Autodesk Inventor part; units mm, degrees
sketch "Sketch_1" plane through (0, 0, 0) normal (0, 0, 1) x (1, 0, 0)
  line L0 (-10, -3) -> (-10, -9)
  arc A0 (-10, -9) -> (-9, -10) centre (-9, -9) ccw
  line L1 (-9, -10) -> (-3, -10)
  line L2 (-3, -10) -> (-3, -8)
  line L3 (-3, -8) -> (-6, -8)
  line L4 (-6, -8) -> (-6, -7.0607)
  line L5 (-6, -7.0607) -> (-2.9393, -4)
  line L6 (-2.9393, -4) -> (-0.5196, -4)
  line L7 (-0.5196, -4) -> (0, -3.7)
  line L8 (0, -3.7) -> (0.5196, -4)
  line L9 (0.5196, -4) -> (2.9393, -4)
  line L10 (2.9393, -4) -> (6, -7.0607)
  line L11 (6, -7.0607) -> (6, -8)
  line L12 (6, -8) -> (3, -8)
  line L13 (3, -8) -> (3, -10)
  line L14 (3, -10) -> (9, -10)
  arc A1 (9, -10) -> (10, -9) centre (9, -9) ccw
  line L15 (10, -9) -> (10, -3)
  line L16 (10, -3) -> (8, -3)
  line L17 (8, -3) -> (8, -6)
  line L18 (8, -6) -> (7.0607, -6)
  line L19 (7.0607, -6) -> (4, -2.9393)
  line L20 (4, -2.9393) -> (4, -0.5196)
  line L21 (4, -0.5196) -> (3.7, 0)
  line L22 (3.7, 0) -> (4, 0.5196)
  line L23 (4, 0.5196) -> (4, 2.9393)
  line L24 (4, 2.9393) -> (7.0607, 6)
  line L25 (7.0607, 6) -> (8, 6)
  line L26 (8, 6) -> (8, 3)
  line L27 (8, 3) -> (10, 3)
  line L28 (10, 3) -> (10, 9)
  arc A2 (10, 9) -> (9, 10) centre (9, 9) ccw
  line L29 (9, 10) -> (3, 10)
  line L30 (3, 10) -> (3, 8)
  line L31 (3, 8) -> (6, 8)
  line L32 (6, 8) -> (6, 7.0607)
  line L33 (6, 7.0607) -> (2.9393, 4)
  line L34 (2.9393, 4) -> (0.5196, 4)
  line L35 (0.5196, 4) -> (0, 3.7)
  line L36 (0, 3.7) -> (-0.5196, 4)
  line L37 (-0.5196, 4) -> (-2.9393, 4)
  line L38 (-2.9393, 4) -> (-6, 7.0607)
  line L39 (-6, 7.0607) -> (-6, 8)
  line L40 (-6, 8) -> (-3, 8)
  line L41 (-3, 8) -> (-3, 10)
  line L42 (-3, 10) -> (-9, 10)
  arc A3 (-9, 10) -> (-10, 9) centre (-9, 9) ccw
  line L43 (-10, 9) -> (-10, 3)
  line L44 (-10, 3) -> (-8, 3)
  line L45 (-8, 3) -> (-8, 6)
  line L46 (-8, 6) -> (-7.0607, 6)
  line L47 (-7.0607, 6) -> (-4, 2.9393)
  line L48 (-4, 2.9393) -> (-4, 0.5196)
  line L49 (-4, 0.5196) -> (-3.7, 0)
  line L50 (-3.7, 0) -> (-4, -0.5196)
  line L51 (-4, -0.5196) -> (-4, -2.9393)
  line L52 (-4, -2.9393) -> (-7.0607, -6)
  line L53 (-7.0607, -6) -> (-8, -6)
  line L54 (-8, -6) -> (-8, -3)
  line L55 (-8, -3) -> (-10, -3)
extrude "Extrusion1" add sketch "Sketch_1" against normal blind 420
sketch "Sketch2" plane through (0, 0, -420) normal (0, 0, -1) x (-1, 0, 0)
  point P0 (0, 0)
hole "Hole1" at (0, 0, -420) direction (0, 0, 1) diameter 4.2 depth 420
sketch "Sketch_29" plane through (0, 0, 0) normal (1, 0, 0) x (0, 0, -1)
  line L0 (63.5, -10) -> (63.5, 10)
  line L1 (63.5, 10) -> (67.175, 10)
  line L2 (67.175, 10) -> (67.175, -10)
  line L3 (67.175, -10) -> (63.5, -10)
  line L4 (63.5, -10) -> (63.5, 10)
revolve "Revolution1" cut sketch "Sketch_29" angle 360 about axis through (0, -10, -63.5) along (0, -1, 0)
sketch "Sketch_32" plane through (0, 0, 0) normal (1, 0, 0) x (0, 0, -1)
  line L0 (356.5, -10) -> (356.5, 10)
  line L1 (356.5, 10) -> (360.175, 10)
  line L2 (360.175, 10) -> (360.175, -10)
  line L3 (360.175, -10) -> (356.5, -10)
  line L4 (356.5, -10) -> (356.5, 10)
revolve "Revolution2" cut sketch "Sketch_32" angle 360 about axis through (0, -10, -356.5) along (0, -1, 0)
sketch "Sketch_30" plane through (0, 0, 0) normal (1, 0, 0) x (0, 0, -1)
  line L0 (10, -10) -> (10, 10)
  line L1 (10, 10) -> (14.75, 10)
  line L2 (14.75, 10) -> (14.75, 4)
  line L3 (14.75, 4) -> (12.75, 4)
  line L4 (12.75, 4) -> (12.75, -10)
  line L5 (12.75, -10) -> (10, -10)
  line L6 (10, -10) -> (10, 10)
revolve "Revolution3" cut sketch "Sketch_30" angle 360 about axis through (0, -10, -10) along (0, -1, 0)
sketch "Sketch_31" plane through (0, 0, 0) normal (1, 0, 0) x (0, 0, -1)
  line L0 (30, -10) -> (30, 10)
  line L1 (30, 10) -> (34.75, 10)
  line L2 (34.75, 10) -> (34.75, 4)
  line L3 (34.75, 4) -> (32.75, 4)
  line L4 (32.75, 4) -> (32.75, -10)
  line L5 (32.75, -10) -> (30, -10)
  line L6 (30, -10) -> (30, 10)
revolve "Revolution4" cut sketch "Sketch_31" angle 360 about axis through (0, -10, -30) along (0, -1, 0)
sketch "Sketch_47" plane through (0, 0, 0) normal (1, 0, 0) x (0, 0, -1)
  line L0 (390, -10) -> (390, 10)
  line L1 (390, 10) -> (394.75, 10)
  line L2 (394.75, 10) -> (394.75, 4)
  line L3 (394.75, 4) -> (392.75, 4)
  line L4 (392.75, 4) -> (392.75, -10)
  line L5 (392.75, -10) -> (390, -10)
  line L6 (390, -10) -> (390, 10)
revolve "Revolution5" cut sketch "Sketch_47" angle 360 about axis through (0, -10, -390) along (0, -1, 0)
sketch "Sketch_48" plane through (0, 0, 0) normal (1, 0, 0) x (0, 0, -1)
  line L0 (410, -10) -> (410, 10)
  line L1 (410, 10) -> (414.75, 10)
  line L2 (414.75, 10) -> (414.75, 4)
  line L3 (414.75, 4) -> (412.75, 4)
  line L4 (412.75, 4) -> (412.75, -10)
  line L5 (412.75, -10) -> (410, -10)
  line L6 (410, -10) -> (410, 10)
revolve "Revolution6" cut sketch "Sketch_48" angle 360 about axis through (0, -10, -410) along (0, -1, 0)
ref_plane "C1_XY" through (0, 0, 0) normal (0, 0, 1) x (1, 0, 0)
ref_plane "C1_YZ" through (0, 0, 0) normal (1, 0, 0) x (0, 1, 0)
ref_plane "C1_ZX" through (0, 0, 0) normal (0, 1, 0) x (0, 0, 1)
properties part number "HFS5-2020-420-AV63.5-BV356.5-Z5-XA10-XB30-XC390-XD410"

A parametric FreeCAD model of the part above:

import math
import FreeCAD as App
import Part
import Sketcher
Q = App.Units.Quantity


def add_polygon(sketch, points):
    """Adds a closed chain of lines whose ends are joined by coincident constraints."""
    first, n = sketch.GeometryCount, len(points)
    for a, b in zip(points, points[1:] + points[:1]):
        sketch.addGeometry(Part.LineSegment(App.Vector(*a, 0), App.Vector(*b, 0)), False)
    for i in range(n):
        sketch.addConstraint(Sketcher.Constraint("Coincident", first + i, 2, first + (i + 1) % n, 1))

doc = App.newDocument("Part")
params = doc.addObject("Spreadsheet::Sheet", "Params")
for row, (alias, value) in enumerate([
    ("sketch1_radius", "1 mm"),
    ("sketch1_width", "2 mm"),
    ("sketch1_width2", "6 mm"),
    ("sketch1_width3", "3 mm"),
    ("sketch1_length", "0.6 mm"),
    ("pad1_length", "420 mm"),
    ("sketch2_diameter", "4.2 mm"),
    ("hole_diameter", "4.2 mm"),
    ("hole_depth", "420 mm"),
    ("sketch3_width", "20 mm"),
    ("groove_angle", "360 deg"),
    ("sketch4_width", "20 mm"),
    ("groove2_angle", "360 deg"),
    ("sketch5_width", "20 mm"),
    ("sketch5_width2", "14 mm"),
    ("sketch5_height", "2 mm"),
    ("sketch5_height2", "2.75 mm"),
    ("groove3_angle", "360 deg"),
    ("sketch6_width", "20 mm"),
    ("sketch6_width2", "14 mm"),
    ("sketch6_height", "2 mm"),
    ("sketch6_height2", "2.75 mm"),
    ("groove4_angle", "360 deg"),
    ("sketch7_width", "20 mm"),
    ("sketch7_width2", "14 mm"),
    ("sketch7_height", "2 mm"),
    ("sketch7_height2", "2.75 mm"),
    ("groove5_angle", "360 deg"),
    ("sketch8_width", "20 mm"),
    ("sketch8_width2", "14 mm"),
    ("sketch8_height", "2 mm"),
    ("sketch8_height2", "2.75 mm"),
    ("groove6_angle", "360 deg"),
], start=1):
    params.set(f"A{row}", alias)
    params.set(f"B{row}", "=" + value)
    params.setAlias(f"B{row}", alias)

body = doc.addObject("PartDesign::Body", "Body")

sketch1 = doc.addObject("Sketcher::SketchObject", "Sketch")
body.addObject(sketch1)
sketch1.AttachmentSupport = (doc.XY_Plane, [""])
sketch1.MapMode = "FlatFace"
sketch1.addGeometry(Part.LineSegment(App.Vector(-8, -3, 0), App.Vector(-10, -3, 0)), False)
sketch1.addGeometry(Part.LineSegment(App.Vector(-10, -3, 0), App.Vector(-10, -9, 0)), False)
sketch1.addGeometry(Part.ArcOfCircle(Part.Circle(App.Vector(-9, -9, 0), App.Vector(0, 0, 1), 1), math.radians(180), math.radians(270)), False)
sketch1.addGeometry(Part.LineSegment(App.Vector(-9, -10, 0), App.Vector(-3, -10, 0)), False)
sketch1.addGeometry(Part.LineSegment(App.Vector(-3, -10, 0), App.Vector(-3, -8, 0)), False)
sketch1.addGeometry(Part.LineSegment(App.Vector(-3, -8, 0), App.Vector(-6, -8, 0)), False)
sketch1.addGeometry(Part.LineSegment(App.Vector(-6, -8, 0), App.Vector(-6, -7.1, 0)), False)
sketch1.addGeometry(Part.LineSegment(App.Vector(-6, -7.1, 0), App.Vector(-2.9, -4, 0)), False)
sketch1.addGeometry(Part.LineSegment(App.Vector(-2.9, -4, 0), App.Vector(-0.5, -4, 0)), False)
sketch1.addGeometry(Part.LineSegment(App.Vector(-0.5, -4, 0), App.Vector(0, -3.7, 0)), False)
sketch1.addGeometry(Part.LineSegment(App.Vector(0, -3.7, 0), App.Vector(0.5, -4, 0)), False)
sketch1.addGeometry(Part.LineSegment(App.Vector(0.5, -4, 0), App.Vector(2.9, -4, 0)), False)
sketch1.addGeometry(Part.LineSegment(App.Vector(2.9, -4, 0), App.Vector(6, -7.1, 0)), False)
sketch1.addGeometry(Part.LineSegment(App.Vector(6, -7.1, 0), App.Vector(6, -8, 0)), False)
sketch1.addGeometry(Part.LineSegment(App.Vector(6, -8, 0), App.Vector(3, -8, 0)), False)
sketch1.addGeometry(Part.LineSegment(App.Vector(3, -8, 0), App.Vector(3, -10, 0)), False)
sketch1.addGeometry(Part.LineSegment(App.Vector(3, -10, 0), App.Vector(9, -10, 0)), False)
sketch1.addGeometry(Part.ArcOfCircle(Part.Circle(App.Vector(9, -9, 0), App.Vector(0, 0, 1), 1), math.radians(-90), math.radians(0)), False)
sketch1.addGeometry(Part.LineSegment(App.Vector(10, -9, 0), App.Vector(10, -3, 0)), False)
sketch1.addGeometry(Part.LineSegment(App.Vector(10, -3, 0), App.Vector(8, -3, 0)), False)
sketch1.addGeometry(Part.LineSegment(App.Vector(8, -3, 0), App.Vector(8, -6, 0)), False)
sketch1.addGeometry(Part.LineSegment(App.Vector(8, -6, 0), App.Vector(7.1, -6, 0)), False)
sketch1.addGeometry(Part.LineSegment(App.Vector(7.1, -6, 0), App.Vector(4, -2.9, 0)), False)
sketch1.addGeometry(Part.LineSegment(App.Vector(4, -2.9, 0), App.Vector(4, -0.5, 0)), False)
sketch1.addGeometry(Part.LineSegment(App.Vector(4, -0.5, 0), App.Vector(3.7, 0, 0)), False)
sketch1.addGeometry(Part.LineSegment(App.Vector(3.7, 0, 0), App.Vector(4, 0.5, 0)), False)
sketch1.addGeometry(Part.LineSegment(App.Vector(4, 0.5, 0), App.Vector(4, 2.9, 0)), False)
sketch1.addGeometry(Part.LineSegment(App.Vector(4, 2.9, 0), App.Vector(7.1, 6, 0)), False)
sketch1.addGeometry(Part.LineSegment(App.Vector(7.1, 6, 0), App.Vector(8, 6, 0)), False)
sketch1.addGeometry(Part.LineSegment(App.Vector(8, 6, 0), App.Vector(8, 3, 0)), False)
sketch1.addGeometry(Part.LineSegment(App.Vector(8, 3, 0), App.Vector(10, 3, 0)), False)
sketch1.addGeometry(Part.LineSegment(App.Vector(10, 3, 0), App.Vector(10, 9, 0)), False)
sketch1.addGeometry(Part.ArcOfCircle(Part.Circle(App.Vector(9, 9, 0), App.Vector(0, 0, 1), 1), math.radians(0), math.radians(90)), False)
sketch1.addGeometry(Part.LineSegment(App.Vector(9, 10, 0), App.Vector(3, 10, 0)), False)
sketch1.addGeometry(Part.LineSegment(App.Vector(3, 10, 0), App.Vector(3, 8, 0)), False)
sketch1.addGeometry(Part.LineSegment(App.Vector(3, 8, 0), App.Vector(6, 8, 0)), False)
sketch1.addGeometry(Part.LineSegment(App.Vector(6, 8, 0), App.Vector(6, 7.1, 0)), False)
sketch1.addGeometry(Part.LineSegment(App.Vector(6, 7.1, 0), App.Vector(2.9, 4, 0)), False)
sketch1.addGeometry(Part.LineSegment(App.Vector(2.9, 4, 0), App.Vector(0.5, 4, 0)), False)
sketch1.addGeometry(Part.LineSegment(App.Vector(0.5, 4, 0), App.Vector(0, 3.7, 0)), False)
sketch1.addGeometry(Part.LineSegment(App.Vector(0, 3.7, 0), App.Vector(-0.5, 4, 0)), False)
sketch1.addGeometry(Part.LineSegment(App.Vector(-0.5, 4, 0), App.Vector(-2.9, 4, 0)), False)
sketch1.addGeometry(Part.LineSegment(App.Vector(-2.9, 4, 0), App.Vector(-6, 7.1, 0)), False)
sketch1.addGeometry(Part.LineSegment(App.Vector(-6, 7.1, 0), App.Vector(-6, 8, 0)), False)
sketch1.addGeometry(Part.LineSegment(App.Vector(-6, 8, 0), App.Vector(-3, 8, 0)), False)
sketch1.addGeometry(Part.LineSegment(App.Vector(-3, 8, 0), App.Vector(-3, 10, 0)), False)
sketch1.addGeometry(Part.LineSegment(App.Vector(-3, 10, 0), App.Vector(-9, 10, 0)), False)
sketch1.addGeometry(Part.ArcOfCircle(Part.Circle(App.Vector(-9, 9, 0), App.Vector(0, 0, 1), 1), math.radians(90), math.radians(180)), False)
sketch1.addGeometry(Part.LineSegment(App.Vector(-10, 9, 0), App.Vector(-10, 3, 0)), False)
sketch1.addGeometry(Part.LineSegment(App.Vector(-10, 3, 0), App.Vector(-8, 3, 0)), False)
sketch1.addGeometry(Part.LineSegment(App.Vector(-8, 3, 0), App.Vector(-8, 6, 0)), False)
sketch1.addGeometry(Part.LineSegment(App.Vector(-8, 6, 0), App.Vector(-7.1, 6, 0)), False)
sketch1.addGeometry(Part.LineSegment(App.Vector(-7.1, 6, 0), App.Vector(-4, 2.9, 0)), False)
sketch1.addGeometry(Part.LineSegment(App.Vector(-4, 2.9, 0), App.Vector(-4, 0.5, 0)), False)
sketch1.addGeometry(Part.LineSegment(App.Vector(-4, 0.5, 0), App.Vector(-3.7, 0, 0)), False)
sketch1.addGeometry(Part.LineSegment(App.Vector(-3.7, 0, 0), App.Vector(-4, -0.5, 0)), False)
sketch1.addGeometry(Part.LineSegment(App.Vector(-4, -0.5, 0), App.Vector(-4, -2.9, 0)), False)
sketch1.addGeometry(Part.LineSegment(App.Vector(-4, -2.9, 0), App.Vector(-7.1, -6, 0)), False)
sketch1.addGeometry(Part.LineSegment(App.Vector(-7.1, -6, 0), App.Vector(-8, -6, 0)), False)
sketch1.addGeometry(Part.LineSegment(App.Vector(-8, -6, 0), App.Vector(-8, -3, 0)), False)
sketch1.addConstraint(Sketcher.Constraint("Coincident", 0, 2, 1, 1))
sketch1.addConstraint(Sketcher.Constraint("Tangent", 1, 2, 2, 1))
sketch1.addConstraint(Sketcher.Constraint("Tangent", 2, 2, 3, 1))
sketch1.addConstraint(Sketcher.Constraint("Coincident", 3, 2, 4, 1))
sketch1.addConstraint(Sketcher.Constraint("Coincident", 4, 2, 5, 1))
sketch1.addConstraint(Sketcher.Constraint("Coincident", 5, 2, 6, 1))
sketch1.addConstraint(Sketcher.Constraint("Coincident", 6, 2, 7, 1))
sketch1.addConstraint(Sketcher.Constraint("Coincident", 7, 2, 8, 1))
sketch1.addConstraint(Sketcher.Constraint("Coincident", 8, 2, 9, 1))
sketch1.addConstraint(Sketcher.Constraint("Coincident", 9, 2, 10, 1))
sketch1.addConstraint(Sketcher.Constraint("Coincident", 10, 2, 11, 1))
sketch1.addConstraint(Sketcher.Constraint("Coincident", 11, 2, 12, 1))
sketch1.addConstraint(Sketcher.Constraint("Coincident", 12, 2, 13, 1))
sketch1.addConstraint(Sketcher.Constraint("Coincident", 13, 2, 14, 1))
sketch1.addConstraint(Sketcher.Constraint("Coincident", 14, 2, 15, 1))
sketch1.addConstraint(Sketcher.Constraint("Coincident", 15, 2, 16, 1))
sketch1.addConstraint(Sketcher.Constraint("Tangent", 16, 2, 17, 1))
sketch1.addConstraint(Sketcher.Constraint("Tangent", 17, 2, 18, 1))
sketch1.addConstraint(Sketcher.Constraint("Coincident", 18, 2, 19, 1))
sketch1.addConstraint(Sketcher.Constraint("Coincident", 19, 2, 20, 1))
sketch1.addConstraint(Sketcher.Constraint("Coincident", 20, 2, 21, 1))
sketch1.addConstraint(Sketcher.Constraint("Coincident", 21, 2, 22, 1))
sketch1.addConstraint(Sketcher.Constraint("Coincident", 22, 2, 23, 1))
sketch1.addConstraint(Sketcher.Constraint("Coincident", 23, 2, 24, 1))
sketch1.addConstraint(Sketcher.Constraint("Coincident", 24, 2, 25, 1))
sketch1.addConstraint(Sketcher.Constraint("Coincident", 25, 2, 26, 1))
sketch1.addConstraint(Sketcher.Constraint("Coincident", 26, 2, 27, 1))
sketch1.addConstraint(Sketcher.Constraint("Coincident", 27, 2, 28, 1))
sketch1.addConstraint(Sketcher.Constraint("Coincident", 28, 2, 29, 1))
sketch1.addConstraint(Sketcher.Constraint("Coincident", 29, 2, 30, 1))
sketch1.addConstraint(Sketcher.Constraint("Coincident", 30, 2, 31, 1))
sketch1.addConstraint(Sketcher.Constraint("Tangent", 31, 2, 32, 1))
sketch1.addConstraint(Sketcher.Constraint("Tangent", 32, 2, 33, 1))
sketch1.addConstraint(Sketcher.Constraint("Coincident", 33, 2, 34, 1))
sketch1.addConstraint(Sketcher.Constraint("Coincident", 34, 2, 35, 1))
sketch1.addConstraint(Sketcher.Constraint("Coincident", 35, 2, 36, 1))
sketch1.addConstraint(Sketcher.Constraint("Coincident", 36, 2, 37, 1))
sketch1.addConstraint(Sketcher.Constraint("Coincident", 37, 2, 38, 1))
sketch1.addConstraint(Sketcher.Constraint("Coincident", 38, 2, 39, 1))
sketch1.addConstraint(Sketcher.Constraint("Coincident", 39, 2, 40, 1))
sketch1.addConstraint(Sketcher.Constraint("Coincident", 40, 2, 41, 1))
sketch1.addConstraint(Sketcher.Constraint("Coincident", 41, 2, 42, 1))
sketch1.addConstraint(Sketcher.Constraint("Coincident", 42, 2, 43, 1))
sketch1.addConstraint(Sketcher.Constraint("Coincident", 43, 2, 44, 1))
sketch1.addConstraint(Sketcher.Constraint("Coincident", 44, 2, 45, 1))
sketch1.addConstraint(Sketcher.Constraint("Coincident", 45, 2, 46, 1))
sketch1.addConstraint(Sketcher.Constraint("Tangent", 46, 2, 47, 1))
sketch1.addConstraint(Sketcher.Constraint("Tangent", 47, 2, 48, 1))
sketch1.addConstraint(Sketcher.Constraint("Coincident", 48, 2, 49, 1))
sketch1.addConstraint(Sketcher.Constraint("Coincident", 49, 2, 50, 1))
sketch1.addConstraint(Sketcher.Constraint("Coincident", 50, 2, 51, 1))
sketch1.addConstraint(Sketcher.Constraint("Coincident", 51, 2, 52, 1))
sketch1.addConstraint(Sketcher.Constraint("Coincident", 52, 2, 53, 1))
sketch1.addConstraint(Sketcher.Constraint("Coincident", 53, 2, 54, 1))
sketch1.addConstraint(Sketcher.Constraint("Coincident", 54, 2, 55, 1))
sketch1.addConstraint(Sketcher.Constraint("Coincident", 55, 2, 56, 1))
sketch1.addConstraint(Sketcher.Constraint("Coincident", 56, 2, 57, 1))
sketch1.addConstraint(Sketcher.Constraint("Coincident", 57, 2, 58, 1))
sketch1.addConstraint(Sketcher.Constraint("Coincident", 58, 2, 59, 1))
sketch1.addConstraint(Sketcher.Constraint("Coincident", 59, 2, 0, 1))
sketch1.addConstraint(Sketcher.Constraint("Horizontal", 0))
sketch1.addConstraint(Sketcher.Constraint("Vertical", 1))
sketch1.addConstraint(Sketcher.Constraint("Horizontal", 3))
sketch1.addConstraint(Sketcher.Constraint("Vertical", 4))
sketch1.addConstraint(Sketcher.Constraint("Horizontal", 5))
sketch1.addConstraint(Sketcher.Constraint("Vertical", 6))
sketch1.addConstraint(Sketcher.Constraint("Horizontal", 8))
sketch1.addConstraint(Sketcher.Constraint("Horizontal", 11))
sketch1.addConstraint(Sketcher.Constraint("Vertical", 13))
sketch1.addConstraint(Sketcher.Constraint("Horizontal", 14))
sketch1.addConstraint(Sketcher.Constraint("Vertical", 15))
sketch1.addConstraint(Sketcher.Constraint("Horizontal", 16))
sketch1.addConstraint(Sketcher.Constraint("Vertical", 18))
sketch1.addConstraint(Sketcher.Constraint("Horizontal", 19))
sketch1.addConstraint(Sketcher.Constraint("Vertical", 20))
sketch1.addConstraint(Sketcher.Constraint("Horizontal", 21))
sketch1.addConstraint(Sketcher.Constraint("Vertical", 23))
sketch1.addConstraint(Sketcher.Constraint("Vertical", 26))
sketch1.addConstraint(Sketcher.Constraint("Horizontal", 28))
sketch1.addConstraint(Sketcher.Constraint("Vertical", 29))
sketch1.addConstraint(Sketcher.Constraint("Horizontal", 30))
sketch1.addConstraint(Sketcher.Constraint("Vertical", 31))
sketch1.addConstraint(Sketcher.Constraint("Horizontal", 33))
sketch1.addConstraint(Sketcher.Constraint("Vertical", 34))
sketch1.addConstraint(Sketcher.Constraint("Horizontal", 35))
sketch1.addConstraint(Sketcher.Constraint("Vertical", 36))
sketch1.addConstraint(Sketcher.Constraint("Horizontal", 38))
sketch1.addConstraint(Sketcher.Constraint("Horizontal", 41))
sketch1.addConstraint(Sketcher.Constraint("Vertical", 43))
sketch1.addConstraint(Sketcher.Constraint("Horizontal", 44))
sketch1.addConstraint(Sketcher.Constraint("Vertical", 45))
sketch1.addConstraint(Sketcher.Constraint("Horizontal", 46))
sketch1.addConstraint(Sketcher.Constraint("Vertical", 48))
sketch1.addConstraint(Sketcher.Constraint("Horizontal", 49))
sketch1.addConstraint(Sketcher.Constraint("Vertical", 50))
sketch1.addConstraint(Sketcher.Constraint("Horizontal", 51))
sketch1.addConstraint(Sketcher.Constraint("Vertical", 53))
sketch1.addConstraint(Sketcher.Constraint("Vertical", 56))
sketch1.addConstraint(Sketcher.Constraint("Horizontal", 58))
sketch1.addConstraint(Sketcher.Constraint("Vertical", 59))
sketch1.addConstraint(Sketcher.Constraint("Equal", 2, 17))
sketch1.addConstraint(Sketcher.Constraint("Equal", 17, 32))
sketch1.addConstraint(Sketcher.Constraint("Equal", 32, 47))
sketch1.addConstraint(Sketcher.Constraint("Symmetric", 2, 3, 32, 3, -1, 1))
sketch1.addConstraint(Sketcher.Constraint("Symmetric", 17, 3, 47, 3, -1, 1))
sketch1.addConstraint(Sketcher.Constraint("Symmetric", 4, 2, 34, 2, -1, 1))
sketch1.addConstraint(Sketcher.Constraint("Symmetric", 6, 2, 36, 2, -1, 1))
sketch1.addConstraint(Sketcher.Constraint("Symmetric", 7, 2, 37, 2, -1, 1))
sketch1.addConstraint(Sketcher.Constraint("Symmetric", 9, 2, 39, 2, -1, 1))
sketch1.addConstraint(Sketcher.Constraint("Symmetric", 10, 2, 40, 2, -1, 1))
sketch1.addConstraint(Sketcher.Constraint("Symmetric", 12, 2, 42, 2, -1, 1))
sketch1.addConstraint(Sketcher.Constraint("Symmetric", 14, 2, 44, 2, -1, 1))
sketch1.addConstraint(Sketcher.Constraint("Symmetric", 19, 2, 49, 2, -1, 1))
sketch1.addConstraint(Sketcher.Constraint("Symmetric", 21, 2, 51, 2, -1, 1))
sketch1.addConstraint(Sketcher.Constraint("Symmetric", 22, 2, 52, 2, -1, 1))
sketch1.addConstraint(Sketcher.Constraint("Symmetric", 24, 2, 54, 2, -1, 1))
sketch1.addConstraint(Sketcher.Constraint("Symmetric", 25, 2, 55, 2, -1, 1))
sketch1.addConstraint(Sketcher.Constraint("Symmetric", 27, 2, 57, 2, -1, 1))
sketch1.addConstraint(Sketcher.Constraint("Symmetric", 29, 2, 59, 2, -1, 1))
sketch1.addConstraint(Sketcher.Constraint("Symmetric", 2, 3, 17, 3, -2))
sketch1.addConstraint(Sketcher.Constraint("Symmetric", 8, 2, 10, 2, -2))
sketch1.addConstraint(Sketcher.Constraint("Symmetric", 6, 2, 12, 2, -2))
sketch1.addConstraint(Sketcher.Constraint("Symmetric", 4, 2, 14, 2, -2))
sketch1.addConstraint(Sketcher.Constraint("Symmetric", 29, 2, 49, 2, -2))
sketch1.addConstraint(Sketcher.Constraint("Symmetric", 27, 2, 51, 2, -2))
sketch1.addConstraint(Sketcher.Constraint("Symmetric", 26, 2, 52, 2, -2))
sketch1.addConstraint(Sketcher.Constraint("PointOnObject", 9, 2, -2))
sketch1.addConstraint(Sketcher.Constraint("PointOnObject", 24, 2, -1))
sketch1.addConstraint(Sketcher.Constraint("Perpendicular", 7, 12))
sketch1.addConstraint(Sketcher.Constraint("Parallel", 12, 22))
sketch1.addConstraint(Sketcher.Constraint("Perpendicular", 9, 24))
sketch1.addConstraint(Sketcher.Constraint("Perpendicular", 10, 25))
sketch1.addConstraint(Sketcher.Constraint("Perpendicular", 22, 27))
sketch1.addConstraint(Sketcher.Constraint("Perpendicular", 24, 39))
sketch1.addConstraint(Sketcher.Constraint("Perpendicular", 37, 42))
sketch1.addConstraint(Sketcher.Constraint("Perpendicular", 39, 54))
sketch1.addConstraint(Sketcher.Constraint("Perpendicular", 52, 57))
sketch1.addConstraint(Sketcher.Constraint("Equal", 46, 1))
sketch1.addConstraint(Sketcher.Constraint("Equal", 49, 4))
sketch1.addConstraint(Sketcher.Constraint("Equal", 58, 6))
sketch1.addConstraint(Sketcher.Constraint("Equal", 44, 20))
sketch1.addConstraint(Sketcher.Constraint("Equal", 41, 23))
sketch1.addConstraint(Sketcher.Constraint("Equal", 12, 22))
sketch1.addConstraint(Sketcher.Constraint("Equal", 10, 24))
sketch1.addConstraint(Sketcher.Constraint("Radius", 2, 1.0))
sketch1.addConstraint(Sketcher.Constraint("DistanceX", 0, 2, 0, 1, 2.0))
sketch1.addConstraint(Sketcher.Constraint("DistanceX", 3, 1, 3, 2, 6.0))
sketch1.addConstraint(Sketcher.Constraint("DistanceX", 5, 2, 5, 1, 3.0))
sketch1.addConstraint(Sketcher.Constraint("Angle", 9, Q("30.0007 deg")))
sketch1.addConstraint(Sketcher.Constraint("DistanceX", 2, 3, -1, 1, 9.0))
sketch1.addConstraint(Sketcher.Constraint("DistanceY", 7, 2, -1, 1, 4.0))
sketch1.addConstraint(Sketcher.Constraint("Distance", 9, 0.6))
sketch1.addConstraint(Sketcher.Constraint("DistanceX", 8, 1, 8, 2, 2.4197))
sketch1.setExpression("Constraints[144]", "Params.sketch1_radius")
sketch1.setExpression("Constraints[145]", "Params.sketch1_width")
sketch1.setExpression("Constraints[146]", "Params.sketch1_width2")
sketch1.setExpression("Constraints[147]", "Params.sketch1_width3")
sketch1.setExpression("Constraints[151]", "Params.sketch1_length")
pad1 = doc.addObject("PartDesign::Pad", "Pad")
body.addObject(pad1)
pad1.Profile = sketch1
pad1.setExpression("Length", "Params.pad1_length")
pad1.Reversed = True

sketch2 = doc.addObject("Sketcher::SketchObject", "Sketch001")
body.addObject(sketch2)
sketch2.AttachmentSupport = (doc.XY_Plane, [""])
sketch2.MapMode = "FlatFace"
sketch2.AttachmentOffset = App.Placement(App.Vector(0, 0, -420), App.Rotation())
sketch2.addGeometry(Part.Circle(App.Vector(0, 0, 0), App.Vector(0, 0, 1), 2.1), False)
sketch2.addConstraint(Sketcher.Constraint("Coincident", 0, 3, -1, 1))
sketch2.addConstraint(Sketcher.Constraint("Diameter", 0, 4.2))
sketch2.setExpression("Constraints[1]", "Params.sketch2_diameter")
doc.recompute()
hole = doc.addObject("PartDesign::Hole", "Hole")
body.addObject(hole)
hole.Profile = sketch2
hole.ThreadType = "None"
hole.setExpression("Diameter", "Params.hole_diameter")
hole.DepthType = "Dimension"
hole.setExpression("Depth", "Params.hole_depth")
hole.DrillPoint = "Flat"
hole.Reversed = True

sketch3 = doc.addObject("Sketcher::SketchObject", "Sketch002")
body.addObject(sketch3)
sketch3.AttachmentSupport = (doc.YZ_Plane, [""])
sketch3.MapMode = "FlatFace"
add_polygon(sketch3, [(10, -63.5), (-10, -63.5), (-10, -67.2), (10, -67.2)])
sketch3.addGeometry(Part.LineSegment(App.Vector(10, -63.5, 0), App.Vector(-10, -63.5, 0)), True)
sketch3.addConstraint(Sketcher.Constraint("Horizontal", 0))
sketch3.addConstraint(Sketcher.Constraint("Vertical", 1))
sketch3.addConstraint(Sketcher.Constraint("Horizontal", 2))
sketch3.addConstraint(Sketcher.Constraint("Vertical", 3))
sketch3.addConstraint(Sketcher.Constraint("Horizontal", 4))
sketch3.addConstraint(Sketcher.Constraint("Coincident", 4, 1, 3, 2))
sketch3.addConstraint(Sketcher.Constraint("Vertical", 1, 2, 4, 2))
sketch3.addConstraint(Sketcher.Constraint("DistanceX", 0, 2, 0, 1, 20.0))
sketch3.addConstraint(Sketcher.Constraint("DistanceX", 0, 2, -1, 1, 10.0))
sketch3.addConstraint(Sketcher.Constraint("DistanceY", 0, 2, -1, 1, 63.5))
sketch3.addConstraint(Sketcher.Constraint("DistanceY", 1, 2, 1, 1, 3.675))
sketch3.setExpression("Constraints[11]", "Params.sketch3_width")
groove = doc.addObject("PartDesign::Groove", "Groove")
body.addObject(groove)
groove.Profile = sketch3
groove.ReferenceAxis = (sketch3, ["Axis0"])
groove.setExpression("Angle", "Params.groove_angle")

sketch4 = doc.addObject("Sketcher::SketchObject", "Sketch003")
body.addObject(sketch4)
sketch4.AttachmentSupport = (doc.YZ_Plane, [""])
sketch4.MapMode = "FlatFace"
add_polygon(sketch4, [(10, -356.5), (-10, -356.5), (-10, -360.2), (10, -360.2)])
sketch4.addGeometry(Part.LineSegment(App.Vector(10, -356.5, 0), App.Vector(-10, -356.5, 0)), True)
sketch4.addConstraint(Sketcher.Constraint("Horizontal", 0))
sketch4.addConstraint(Sketcher.Constraint("Vertical", 1))
sketch4.addConstraint(Sketcher.Constraint("Horizontal", 2))
sketch4.addConstraint(Sketcher.Constraint("Vertical", 3))
sketch4.addConstraint(Sketcher.Constraint("Horizontal", 4))
sketch4.addConstraint(Sketcher.Constraint("Coincident", 4, 1, 3, 2))
sketch4.addConstraint(Sketcher.Constraint("Vertical", 1, 2, 4, 2))
sketch4.addConstraint(Sketcher.Constraint("DistanceX", 0, 2, 0, 1, 20.0))
sketch4.addConstraint(Sketcher.Constraint("DistanceX", 0, 2, -1, 1, 10.0))
sketch4.addConstraint(Sketcher.Constraint("DistanceY", 0, 2, -1, 1, 356.5))
sketch4.addConstraint(Sketcher.Constraint("DistanceY", 1, 2, 1, 1, 3.675))
sketch4.setExpression("Constraints[11]", "Params.sketch4_width")
groove2 = doc.addObject("PartDesign::Groove", "Groove001")
body.addObject(groove2)
groove2.Profile = sketch4
groove2.ReferenceAxis = (sketch4, ["Axis0"])
groove2.setExpression("Angle", "Params.groove2_angle")

sketch5 = doc.addObject("Sketcher::SketchObject", "Sketch004")
body.addObject(sketch5)
sketch5.AttachmentSupport = (doc.YZ_Plane, [""])
sketch5.MapMode = "FlatFace"
add_polygon(sketch5, [(10, -10), (-10, -10), (-10, -12.8), (4, -12.8), (4, -14.8), (10, -14.8)])
sketch5.addGeometry(Part.LineSegment(App.Vector(10, -10, 0), App.Vector(-10, -10, 0)), True)
sketch5.addConstraint(Sketcher.Constraint("Horizontal", 0))
sketch5.addConstraint(Sketcher.Constraint("Vertical", 1))
sketch5.addConstraint(Sketcher.Constraint("Horizontal", 2))
sketch5.addConstraint(Sketcher.Constraint("Vertical", 3))
sketch5.addConstraint(Sketcher.Constraint("Horizontal", 4))
sketch5.addConstraint(Sketcher.Constraint("Vertical", 5))
sketch5.addConstraint(Sketcher.Constraint("Horizontal", 6))
sketch5.addConstraint(Sketcher.Constraint("Coincident", 6, 1, 5, 2))
sketch5.addConstraint(Sketcher.Constraint("Vertical", 1, 2, 6, 2))
sketch5.addConstraint(Sketcher.Constraint("DistanceX", 0, 2, 0, 1, 20.0))
sketch5.addConstraint(Sketcher.Constraint("DistanceX", 2, 1, 2, 2, 14.0))
sketch5.addConstraint(Sketcher.Constraint("DistanceY", 3, 2, 3, 1, 2.0))
sketch5.addConstraint(Sketcher.Constraint("DistanceX", 0, 2, -1, 1, 10.0))
sketch5.addConstraint(Sketcher.Constraint("DistanceY", 0, 2, -1, 1, 10.0))
sketch5.addConstraint(Sketcher.Constraint("DistanceY", 1, 2, 1, 1, 2.75))
sketch5.setExpression("Constraints[15]", "Params.sketch5_width")
sketch5.setExpression("Constraints[16]", "Params.sketch5_width2")
sketch5.setExpression("Constraints[17]", "Params.sketch5_height")
sketch5.setExpression("Constraints[20]", "Params.sketch5_height2")
groove3 = doc.addObject("PartDesign::Groove", "Groove002")
body.addObject(groove3)
groove3.Profile = sketch5
groove3.ReferenceAxis = (sketch5, ["Axis0"])
groove3.setExpression("Angle", "Params.groove3_angle")

sketch6 = doc.addObject("Sketcher::SketchObject", "Sketch005")
body.addObject(sketch6)
sketch6.AttachmentSupport = (doc.YZ_Plane, [""])
sketch6.MapMode = "FlatFace"
add_polygon(sketch6, [(10, -30), (-10, -30), (-10, -32.8), (4, -32.8), (4, -34.8), (10, -34.8)])
sketch6.addGeometry(Part.LineSegment(App.Vector(10, -30, 0), App.Vector(-10, -30, 0)), True)
sketch6.addConstraint(Sketcher.Constraint("Horizontal", 0))
sketch6.addConstraint(Sketcher.Constraint("Vertical", 1))
sketch6.addConstraint(Sketcher.Constraint("Horizontal", 2))
sketch6.addConstraint(Sketcher.Constraint("Vertical", 3))
sketch6.addConstraint(Sketcher.Constraint("Horizontal", 4))
sketch6.addConstraint(Sketcher.Constraint("Vertical", 5))
sketch6.addConstraint(Sketcher.Constraint("Horizontal", 6))
sketch6.addConstraint(Sketcher.Constraint("Coincident", 6, 1, 5, 2))
sketch6.addConstraint(Sketcher.Constraint("Vertical", 1, 2, 6, 2))
sketch6.addConstraint(Sketcher.Constraint("DistanceX", 0, 2, 0, 1, 20.0))
sketch6.addConstraint(Sketcher.Constraint("DistanceX", 2, 1, 2, 2, 14.0))
sketch6.addConstraint(Sketcher.Constraint("DistanceY", 3, 2, 3, 1, 2.0))
sketch6.addConstraint(Sketcher.Constraint("DistanceX", 0, 2, -1, 1, 10.0))
sketch6.addConstraint(Sketcher.Constraint("DistanceY", 0, 2, -1, 1, 30.0))
sketch6.addConstraint(Sketcher.Constraint("DistanceY", 1, 2, 1, 1, 2.75))
sketch6.setExpression("Constraints[15]", "Params.sketch6_width")
sketch6.setExpression("Constraints[16]", "Params.sketch6_width2")
sketch6.setExpression("Constraints[17]", "Params.sketch6_height")
sketch6.setExpression("Constraints[20]", "Params.sketch6_height2")
groove4 = doc.addObject("PartDesign::Groove", "Groove003")
body.addObject(groove4)
groove4.Profile = sketch6
groove4.ReferenceAxis = (sketch6, ["Axis0"])
groove4.setExpression("Angle", "Params.groove4_angle")

sketch7 = doc.addObject("Sketcher::SketchObject", "Sketch006")
body.addObject(sketch7)
sketch7.AttachmentSupport = (doc.YZ_Plane, [""])
sketch7.MapMode = "FlatFace"
add_polygon(sketch7, [(10, -390), (-10, -390), (-10, -392.8), (4, -392.8), (4, -394.8), (10, -394.8)])
sketch7.addGeometry(Part.LineSegment(App.Vector(10, -390, 0), App.Vector(-10, -390, 0)), True)
sketch7.addConstraint(Sketcher.Constraint("Horizontal", 0))
sketch7.addConstraint(Sketcher.Constraint("Vertical", 1))
sketch7.addConstraint(Sketcher.Constraint("Horizontal", 2))
sketch7.addConstraint(Sketcher.Constraint("Vertical", 3))
sketch7.addConstraint(Sketcher.Constraint("Horizontal", 4))
sketch7.addConstraint(Sketcher.Constraint("Vertical", 5))
sketch7.addConstraint(Sketcher.Constraint("Horizontal", 6))
sketch7.addConstraint(Sketcher.Constraint("Coincident", 6, 1, 5, 2))
sketch7.addConstraint(Sketcher.Constraint("Vertical", 1, 2, 6, 2))
sketch7.addConstraint(Sketcher.Constraint("DistanceX", 0, 2, 0, 1, 20.0))
sketch7.addConstraint(Sketcher.Constraint("DistanceX", 2, 1, 2, 2, 14.0))
sketch7.addConstraint(Sketcher.Constraint("DistanceY", 3, 2, 3, 1, 2.0))
sketch7.addConstraint(Sketcher.Constraint("DistanceX", 0, 2, -1, 1, 10.0))
sketch7.addConstraint(Sketcher.Constraint("DistanceY", 0, 2, -1, 1, 390.0))
sketch7.addConstraint(Sketcher.Constraint("DistanceY", 1, 2, 1, 1, 2.75))
sketch7.setExpression("Constraints[15]", "Params.sketch7_width")
sketch7.setExpression("Constraints[16]", "Params.sketch7_width2")
sketch7.setExpression("Constraints[17]", "Params.sketch7_height")
sketch7.setExpression("Constraints[20]", "Params.sketch7_height2")
groove5 = doc.addObject("PartDesign::Groove", "Groove004")
body.addObject(groove5)
groove5.Profile = sketch7
groove5.ReferenceAxis = (sketch7, ["Axis0"])
groove5.setExpression("Angle", "Params.groove5_angle")

sketch8 = doc.addObject("Sketcher::SketchObject", "Sketch007")
body.addObject(sketch8)
sketch8.AttachmentSupport = (doc.YZ_Plane, [""])
sketch8.MapMode = "FlatFace"
add_polygon(sketch8, [(10, -410), (-10, -410), (-10, -412.8), (4, -412.8), (4, -414.8), (10, -414.8)])
sketch8.addGeometry(Part.LineSegment(App.Vector(10, -410, 0), App.Vector(-10, -410, 0)), True)
sketch8.addConstraint(Sketcher.Constraint("Horizontal", 0))
sketch8.addConstraint(Sketcher.Constraint("Vertical", 1))
sketch8.addConstraint(Sketcher.Constraint("Horizontal", 2))
sketch8.addConstraint(Sketcher.Constraint("Vertical", 3))
sketch8.addConstraint(Sketcher.Constraint("Horizontal", 4))
sketch8.addConstraint(Sketcher.Constraint("Vertical", 5))
sketch8.addConstraint(Sketcher.Constraint("Horizontal", 6))
sketch8.addConstraint(Sketcher.Constraint("Coincident", 6, 1, 5, 2))
sketch8.addConstraint(Sketcher.Constraint("Vertical", 1, 2, 6, 2))
sketch8.addConstraint(Sketcher.Constraint("DistanceX", 0, 2, 0, 1, 20.0))
sketch8.addConstraint(Sketcher.Constraint("DistanceX", 2, 1, 2, 2, 14.0))
sketch8.addConstraint(Sketcher.Constraint("DistanceY", 3, 2, 3, 1, 2.0))
sketch8.addConstraint(Sketcher.Constraint("DistanceX", 0, 2, -1, 1, 10.0))
sketch8.addConstraint(Sketcher.Constraint("DistanceY", 0, 2, -1, 1, 410.0))
sketch8.addConstraint(Sketcher.Constraint("DistanceY", 1, 2, 1, 1, 2.75))
sketch8.setExpression("Constraints[15]", "Params.sketch8_width")
sketch8.setExpression("Constraints[16]", "Params.sketch8_width2")
sketch8.setExpression("Constraints[17]", "Params.sketch8_height")
sketch8.setExpression("Constraints[20]", "Params.sketch8_height2")
groove6 = doc.addObject("PartDesign::Groove", "Groove005")
body.addObject(groove6)
groove6.Profile = sketch8
groove6.ReferenceAxis = (sketch8, ["Axis0"])
groove6.setExpression("Angle", "Params.groove6_angle")

doc.recompute()
